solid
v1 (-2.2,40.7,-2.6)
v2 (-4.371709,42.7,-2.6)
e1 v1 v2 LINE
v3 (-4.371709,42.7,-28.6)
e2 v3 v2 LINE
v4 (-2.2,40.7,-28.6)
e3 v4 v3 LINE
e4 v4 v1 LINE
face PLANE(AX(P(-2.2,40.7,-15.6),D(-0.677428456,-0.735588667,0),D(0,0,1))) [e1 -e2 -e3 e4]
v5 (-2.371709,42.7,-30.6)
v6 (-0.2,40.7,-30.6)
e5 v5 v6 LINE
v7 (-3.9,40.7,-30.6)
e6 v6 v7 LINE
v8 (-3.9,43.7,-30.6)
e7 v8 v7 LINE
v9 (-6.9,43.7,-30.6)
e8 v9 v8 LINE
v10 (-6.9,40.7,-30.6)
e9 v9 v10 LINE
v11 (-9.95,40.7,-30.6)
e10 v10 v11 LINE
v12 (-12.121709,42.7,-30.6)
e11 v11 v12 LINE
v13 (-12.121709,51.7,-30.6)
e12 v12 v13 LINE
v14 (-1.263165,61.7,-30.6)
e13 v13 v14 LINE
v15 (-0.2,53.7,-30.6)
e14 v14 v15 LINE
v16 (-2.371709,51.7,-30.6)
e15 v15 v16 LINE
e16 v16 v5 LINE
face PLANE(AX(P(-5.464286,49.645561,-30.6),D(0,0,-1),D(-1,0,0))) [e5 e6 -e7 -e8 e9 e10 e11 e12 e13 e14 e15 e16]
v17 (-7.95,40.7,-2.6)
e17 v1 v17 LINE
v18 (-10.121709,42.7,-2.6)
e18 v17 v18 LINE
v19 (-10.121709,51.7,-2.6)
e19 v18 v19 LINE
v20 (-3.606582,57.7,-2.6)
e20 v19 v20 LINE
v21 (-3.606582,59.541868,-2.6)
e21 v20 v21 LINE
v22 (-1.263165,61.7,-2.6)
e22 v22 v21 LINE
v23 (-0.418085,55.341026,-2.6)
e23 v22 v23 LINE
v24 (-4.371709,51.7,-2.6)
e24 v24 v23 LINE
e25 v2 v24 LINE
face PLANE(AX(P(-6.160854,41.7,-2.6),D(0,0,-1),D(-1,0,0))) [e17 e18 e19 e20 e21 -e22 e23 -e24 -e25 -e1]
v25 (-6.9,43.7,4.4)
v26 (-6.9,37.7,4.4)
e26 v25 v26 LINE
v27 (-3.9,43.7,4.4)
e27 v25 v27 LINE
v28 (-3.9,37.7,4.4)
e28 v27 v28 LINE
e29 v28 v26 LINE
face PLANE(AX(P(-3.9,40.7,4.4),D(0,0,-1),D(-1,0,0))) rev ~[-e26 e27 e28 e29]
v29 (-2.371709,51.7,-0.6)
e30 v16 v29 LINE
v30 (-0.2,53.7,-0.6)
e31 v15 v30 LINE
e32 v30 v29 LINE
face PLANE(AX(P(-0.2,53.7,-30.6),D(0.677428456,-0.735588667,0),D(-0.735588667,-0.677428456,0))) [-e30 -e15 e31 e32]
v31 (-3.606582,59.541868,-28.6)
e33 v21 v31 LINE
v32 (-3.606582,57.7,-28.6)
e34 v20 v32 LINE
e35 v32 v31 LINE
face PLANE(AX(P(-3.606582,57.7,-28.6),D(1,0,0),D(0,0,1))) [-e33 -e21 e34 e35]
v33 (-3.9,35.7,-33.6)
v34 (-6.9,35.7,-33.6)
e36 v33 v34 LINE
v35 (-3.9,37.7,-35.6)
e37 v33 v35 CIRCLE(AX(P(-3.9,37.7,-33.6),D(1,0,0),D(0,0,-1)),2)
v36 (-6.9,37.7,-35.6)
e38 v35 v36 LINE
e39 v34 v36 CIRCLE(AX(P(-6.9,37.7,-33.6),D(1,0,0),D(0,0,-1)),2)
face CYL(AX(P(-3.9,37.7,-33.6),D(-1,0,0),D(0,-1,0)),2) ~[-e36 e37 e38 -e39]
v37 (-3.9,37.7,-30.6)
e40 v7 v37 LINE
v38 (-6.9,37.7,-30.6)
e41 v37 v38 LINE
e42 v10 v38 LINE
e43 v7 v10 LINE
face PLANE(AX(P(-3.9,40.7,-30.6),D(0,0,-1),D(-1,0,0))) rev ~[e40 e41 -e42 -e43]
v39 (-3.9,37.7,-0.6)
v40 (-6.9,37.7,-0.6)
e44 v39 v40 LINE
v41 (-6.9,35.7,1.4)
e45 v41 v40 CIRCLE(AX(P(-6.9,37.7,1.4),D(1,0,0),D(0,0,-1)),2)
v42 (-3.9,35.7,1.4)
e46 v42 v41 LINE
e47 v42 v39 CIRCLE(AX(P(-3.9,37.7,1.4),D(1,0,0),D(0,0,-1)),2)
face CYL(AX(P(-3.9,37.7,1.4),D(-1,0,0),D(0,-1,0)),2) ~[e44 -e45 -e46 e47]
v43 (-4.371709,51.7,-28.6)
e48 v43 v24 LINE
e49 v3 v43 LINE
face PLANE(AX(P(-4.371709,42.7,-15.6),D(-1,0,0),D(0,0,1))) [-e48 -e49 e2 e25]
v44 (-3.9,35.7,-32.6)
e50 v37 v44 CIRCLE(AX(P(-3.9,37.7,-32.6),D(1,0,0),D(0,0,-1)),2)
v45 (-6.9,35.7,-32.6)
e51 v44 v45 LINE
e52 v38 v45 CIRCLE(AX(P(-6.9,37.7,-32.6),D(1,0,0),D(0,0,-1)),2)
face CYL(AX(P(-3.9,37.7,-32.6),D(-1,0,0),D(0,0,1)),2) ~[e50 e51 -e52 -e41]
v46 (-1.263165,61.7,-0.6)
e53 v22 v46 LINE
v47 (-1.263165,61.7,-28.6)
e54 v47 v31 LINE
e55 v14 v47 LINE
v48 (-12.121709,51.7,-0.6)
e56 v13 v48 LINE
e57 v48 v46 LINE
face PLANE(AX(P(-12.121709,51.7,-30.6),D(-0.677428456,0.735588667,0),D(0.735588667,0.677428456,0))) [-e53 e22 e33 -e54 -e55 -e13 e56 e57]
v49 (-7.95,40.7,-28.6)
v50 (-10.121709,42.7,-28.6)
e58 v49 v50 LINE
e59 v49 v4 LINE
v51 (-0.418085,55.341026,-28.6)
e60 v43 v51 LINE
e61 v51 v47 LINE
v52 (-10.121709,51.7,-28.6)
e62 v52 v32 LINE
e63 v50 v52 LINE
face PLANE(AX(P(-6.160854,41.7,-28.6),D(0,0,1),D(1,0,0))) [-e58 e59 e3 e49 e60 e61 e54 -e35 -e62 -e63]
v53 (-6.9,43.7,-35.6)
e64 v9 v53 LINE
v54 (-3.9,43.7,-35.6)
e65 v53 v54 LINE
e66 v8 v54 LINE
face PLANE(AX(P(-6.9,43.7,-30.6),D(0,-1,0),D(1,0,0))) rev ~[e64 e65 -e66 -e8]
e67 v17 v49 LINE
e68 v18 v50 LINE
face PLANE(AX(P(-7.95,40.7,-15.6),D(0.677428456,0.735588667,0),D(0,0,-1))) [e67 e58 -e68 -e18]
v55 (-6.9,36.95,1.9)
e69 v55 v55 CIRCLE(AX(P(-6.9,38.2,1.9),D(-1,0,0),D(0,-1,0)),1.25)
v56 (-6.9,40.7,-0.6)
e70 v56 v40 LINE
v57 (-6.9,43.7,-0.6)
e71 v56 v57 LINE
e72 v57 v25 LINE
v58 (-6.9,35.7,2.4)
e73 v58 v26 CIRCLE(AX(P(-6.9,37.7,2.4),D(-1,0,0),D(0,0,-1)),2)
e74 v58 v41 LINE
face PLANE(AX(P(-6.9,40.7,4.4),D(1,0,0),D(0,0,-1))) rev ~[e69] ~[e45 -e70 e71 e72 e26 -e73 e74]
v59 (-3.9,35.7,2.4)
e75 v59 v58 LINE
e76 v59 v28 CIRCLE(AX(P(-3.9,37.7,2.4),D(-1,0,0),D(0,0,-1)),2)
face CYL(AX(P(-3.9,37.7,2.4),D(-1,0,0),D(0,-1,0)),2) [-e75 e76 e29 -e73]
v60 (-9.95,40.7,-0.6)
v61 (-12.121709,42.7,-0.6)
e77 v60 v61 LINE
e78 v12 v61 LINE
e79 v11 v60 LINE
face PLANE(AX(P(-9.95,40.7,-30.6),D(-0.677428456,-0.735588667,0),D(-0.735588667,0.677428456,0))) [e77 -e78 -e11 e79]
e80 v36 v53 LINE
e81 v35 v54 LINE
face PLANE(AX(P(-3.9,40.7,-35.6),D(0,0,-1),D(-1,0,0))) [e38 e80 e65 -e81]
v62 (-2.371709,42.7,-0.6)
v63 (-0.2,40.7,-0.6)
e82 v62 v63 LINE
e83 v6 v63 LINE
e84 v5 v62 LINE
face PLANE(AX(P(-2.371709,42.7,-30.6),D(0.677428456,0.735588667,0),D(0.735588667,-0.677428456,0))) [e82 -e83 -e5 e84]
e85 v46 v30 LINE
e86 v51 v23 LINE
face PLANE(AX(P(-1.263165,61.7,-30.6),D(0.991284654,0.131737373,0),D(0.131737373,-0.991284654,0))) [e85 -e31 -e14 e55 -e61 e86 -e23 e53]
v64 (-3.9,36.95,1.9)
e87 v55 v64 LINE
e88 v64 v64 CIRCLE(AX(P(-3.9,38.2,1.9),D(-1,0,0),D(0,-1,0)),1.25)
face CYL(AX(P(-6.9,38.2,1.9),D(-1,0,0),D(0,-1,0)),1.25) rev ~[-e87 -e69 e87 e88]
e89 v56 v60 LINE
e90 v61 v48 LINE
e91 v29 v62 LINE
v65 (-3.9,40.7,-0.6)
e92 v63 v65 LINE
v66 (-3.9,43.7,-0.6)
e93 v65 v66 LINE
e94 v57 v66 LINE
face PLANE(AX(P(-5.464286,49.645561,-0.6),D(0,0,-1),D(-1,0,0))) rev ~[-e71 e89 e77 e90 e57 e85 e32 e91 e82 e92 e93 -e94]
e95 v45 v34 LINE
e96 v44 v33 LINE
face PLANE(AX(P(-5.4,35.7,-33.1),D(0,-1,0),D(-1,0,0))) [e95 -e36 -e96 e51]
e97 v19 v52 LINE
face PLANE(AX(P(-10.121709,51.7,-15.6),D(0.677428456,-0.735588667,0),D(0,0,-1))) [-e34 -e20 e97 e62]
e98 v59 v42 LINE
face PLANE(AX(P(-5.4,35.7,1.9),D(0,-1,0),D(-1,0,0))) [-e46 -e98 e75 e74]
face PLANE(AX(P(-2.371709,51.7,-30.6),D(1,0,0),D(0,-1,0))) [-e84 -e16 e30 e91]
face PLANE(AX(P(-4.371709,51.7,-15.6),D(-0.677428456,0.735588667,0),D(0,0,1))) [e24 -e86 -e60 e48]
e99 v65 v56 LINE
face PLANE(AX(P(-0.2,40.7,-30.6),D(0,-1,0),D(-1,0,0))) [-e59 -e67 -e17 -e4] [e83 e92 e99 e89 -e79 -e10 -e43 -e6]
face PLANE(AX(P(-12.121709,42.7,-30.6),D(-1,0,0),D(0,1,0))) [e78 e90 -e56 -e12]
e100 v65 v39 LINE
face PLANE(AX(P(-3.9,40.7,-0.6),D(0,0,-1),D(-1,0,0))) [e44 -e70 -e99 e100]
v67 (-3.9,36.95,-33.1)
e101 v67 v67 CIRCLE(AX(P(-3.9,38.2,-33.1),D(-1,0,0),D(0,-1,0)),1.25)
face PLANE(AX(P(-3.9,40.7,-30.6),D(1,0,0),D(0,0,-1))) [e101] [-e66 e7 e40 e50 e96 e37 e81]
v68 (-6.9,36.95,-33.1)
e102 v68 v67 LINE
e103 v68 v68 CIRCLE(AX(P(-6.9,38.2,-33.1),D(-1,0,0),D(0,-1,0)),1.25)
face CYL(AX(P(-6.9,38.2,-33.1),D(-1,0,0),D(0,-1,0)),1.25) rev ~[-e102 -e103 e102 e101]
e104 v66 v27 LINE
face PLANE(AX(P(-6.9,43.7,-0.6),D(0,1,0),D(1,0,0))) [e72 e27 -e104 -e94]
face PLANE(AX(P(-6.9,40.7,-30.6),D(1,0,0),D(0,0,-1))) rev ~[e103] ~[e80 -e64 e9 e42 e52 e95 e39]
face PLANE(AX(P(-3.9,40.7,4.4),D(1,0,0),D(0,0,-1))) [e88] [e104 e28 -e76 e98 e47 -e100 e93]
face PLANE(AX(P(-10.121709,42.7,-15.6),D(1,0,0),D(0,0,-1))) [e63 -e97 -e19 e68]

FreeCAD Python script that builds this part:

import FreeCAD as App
import Part
import Sketcher

V = App.Vector
Q = App.Units.Quantity


def edges_at(feature, points):
    """Names of the edges that pass closest to the given points."""
    edges = feature.Shape.Edges
    near = lambda p: min(range(len(edges)), key=lambda i: edges[i].distToShape(Part.Vertex(*p))[0])
    return sorted({f"Edge{near(p) + 1}" for p in points})

doc = App.newDocument("Part")
body = doc.addObject("PartDesign::Body", "Body")

# Sketch on XY plane
sketch1 = body.newObject("Sketcher::SketchObject", "Sketch")
sketch1.AttachmentSupport = (doc.getObject("XY_Plane"), [""])
sketch1.MapMode = "FlatFace"
sketch1.addGeometry(Part.LineSegment(V(-11.9, -19, 0), V(-9.8, -21, 0)), False)
sketch1.addGeometry(Part.LineSegment(V(-9.8, -21, 0), V(0, -21, 0)), False)
sketch1.addGeometry(Part.LineSegment(V(0, -21, 0), V(-2.2, -19, 0)), False)
sketch1.addGeometry(Part.LineSegment(V(-2.2, -19, 0), V(-2.2, -10, 0)), False)
sketch1.addGeometry(Part.LineSegment(V(-2.2, -10, 0), V(0, -8, 0)), False)
sketch1.addGeometry(Part.LineSegment(V(0, -8, 0), V(-1.1, 0, 0)), False)
sketch1.addGeometry(Part.LineSegment(V(-1.1, 0, 0), V(-11.9, -10, 0)), False)
sketch1.addGeometry(Part.LineSegment(V(-11.9, -10, 0), V(-11.9, -19, 0)), False)
sketch1.addConstraint(Sketcher.Constraint("Coincident", 0, 2, 1, 1))
sketch1.addConstraint(Sketcher.Constraint("Coincident", 1, 2, 2, 1))
sketch1.addConstraint(Sketcher.Constraint("Coincident", 2, 2, 3, 1))
sketch1.addConstraint(Sketcher.Constraint("Coincident", 3, 2, 4, 1))
sketch1.addConstraint(Sketcher.Constraint("Coincident", 4, 2, 5, 1))
sketch1.addConstraint(Sketcher.Constraint("Coincident", 5, 2, 6, 1))
sketch1.addConstraint(Sketcher.Constraint("Coincident", 6, 2, 7, 1))
sketch1.addConstraint(Sketcher.Constraint("Coincident", 7, 2, 0, 1))
sketch1.addConstraint(Sketcher.Constraint("Horizontal", 1))
sketch1.addConstraint(Sketcher.Constraint("Vertical", 3))
sketch1.addConstraint(Sketcher.Constraint("Vertical", 7))
sketch1.addConstraint(Sketcher.Constraint("PointOnObject", 1, 2, -2))
sketch1.addConstraint(Sketcher.Constraint("PointOnObject", 4, 2, -2))
sketch1.addConstraint(Sketcher.Constraint("PointOnObject", 5, 2, -1))
sketch1.addConstraint(Sketcher.Constraint("Parallel", 0, 2))
sketch1.addConstraint(Sketcher.Constraint("Parallel", 4, 6))
sketch1.addConstraint(Sketcher.Constraint("Horizontal", 3, 2, 6, 2))
sketch1.addConstraint(Sketcher.Constraint("Horizontal", 2, 2, 7, 2))
sketch1.addConstraint(Sketcher.Constraint("Equal", 2, 4))
sketch1.addConstraint(Sketcher.Constraint("DistanceY", 3, 1, 3, 2, 9.0))
sketch1.addConstraint(Sketcher.Constraint("DistanceY", 0, 2, -1, 1, 21.0))
sketch1.addConstraint(Sketcher.Constraint("DistanceY", 2, 2, -1, 1, 19.0))
sketch1.addConstraint(Sketcher.Constraint("DistanceX", 1, 1, 1, 2, 9.75))
sketch1.addConstraint(Sketcher.Constraint("Angle", 5, Q("97.57 deg")))
pad1 = body.newObject("PartDesign::Pad", "Pad")
pad1.Profile = sketch1
pad1.Length = 30

# Sketch on XZ plane
sketch2 = body.newObject("Sketcher::SketchObject", "Sketch001")
sketch2.AttachmentSupport = (doc.getObject("XZ_Plane"), [""])
sketch2.MapMode = "FlatFace"
sketch2.AttachmentOffset = App.Placement(V(0, 0, 21), App.Rotation())
sketch2.addGeometry(Part.LineSegment(V(-8, 28, 0), V(-8, 2, 0)), False)
sketch2.addGeometry(Part.LineSegment(V(-8, 2, 0), V(-2, 2, 0)), False)
sketch2.addGeometry(Part.LineSegment(V(-2, 2, 0), V(-2, 28, 0)), False)
sketch2.addGeometry(Part.LineSegment(V(-2, 28, 0), V(-8, 28, 0)), False)
sketch2.addConstraint(Sketcher.Constraint("Coincident", 0, 2, 1, 1))
sketch2.addConstraint(Sketcher.Constraint("Coincident", 1, 2, 2, 1))
sketch2.addConstraint(Sketcher.Constraint("Coincident", 2, 2, 3, 1))
sketch2.addConstraint(Sketcher.Constraint("Coincident", 3, 2, 0, 1))
sketch2.addConstraint(Sketcher.Constraint("Vertical", 0))
sketch2.addConstraint(Sketcher.Constraint("Horizontal", 1))
sketch2.addConstraint(Sketcher.Constraint("Vertical", 2))
sketch2.addConstraint(Sketcher.Constraint("Horizontal", 3))
sketch2.addConstraint(Sketcher.Constraint("DistanceY", 0, 2, 0, 1, 26.0))
sketch2.addConstraint(Sketcher.Constraint("DistanceY", -1, 1, 0, 2, 2.0))
sketch2.addConstraint(Sketcher.Constraint("DistanceX", 1, 2, -1, 1, 2.0))
sketch2.addConstraint(Sketcher.Constraint("DistanceX", 1, 1, 1, 2, 5.75))

# Sketch on XY plane
sketch3 = body.newObject("Sketcher::SketchObject", "Sketch002")
sketch3.AttachmentSupport = (doc.getObject("XY_Plane"), [""])
sketch3.MapMode = "FlatFace"
sketch3.AttachmentOffset = App.Placement(V(0, 0, 30), App.Rotation())
sketch3.addGeometry(Part.LineSegment(V(-4.9, -21, 0), V(-7, -19, 0)), False)
sketch3.addGeometry(Part.LineSegment(V(-7, -19, 0), V(-7, -10, 0)), False)
sketch3.addGeometry(Part.LineSegment(V(-7, -10, 0), V(-0.5, -4, 0)), False)
sketch3.addConstraint(Sketcher.Constraint("Coincident", 0, 2, 1, 1))
sketch3.addConstraint(Sketcher.Constraint("Coincident", 1, 2, 2, 1))
sketch3.addConstraint(Sketcher.Constraint("Vertical", 1))
sketch3.addConstraint(Sketcher.Constraint("DistanceY", 1, 1, 1, 2, 9.0))
sketch3.addConstraint(Sketcher.Constraint("DistanceY", 0, 1, -1, 1, 21.0))
sketch3.addConstraint(Sketcher.Constraint("DistanceY", 0, 2, -1, 1, 19.0))
sketch3.addConstraint(Sketcher.Constraint("DistanceY", 2, 2, -1, 1, 4.0))
sketch3.addConstraint(Sketcher.Constraint("DistanceX", 0, 1, -1, 1, 4.875))
sketch3.addConstraint(Sketcher.Constraint("Distance", 0, 2.952341))
sketch3.addConstraint(Sketcher.Constraint("Distance", 2, 8.857024))
doc.recompute()

subtractivepipe = body.newObject("PartDesign::SubtractivePipe", "SubtractivePipe")
subtractivepipe.Profile = sketch2
subtractivepipe.Spine = (sketch3, ["Edge1", "Edge2", "Edge3"])

# Sketch on XZ plane
sketch4 = body.newObject("Sketcher::SketchObject", "Sketch003")
sketch4.AttachmentSupport = (doc.getObject("XZ_Plane"), [""])
sketch4.MapMode = "FlatFace"
sketch4.AttachmentOffset = App.Placement(V(0, 0, 4), App.Rotation())
sketch4.addGeometry(Part.LineSegment(V(-3.4, 28, 0), V(-3.4, 2, 0)), False)
sketch4.addGeometry(Part.LineSegment(V(-3.4, 2, 0), V(-0.5, 2, 0)), False)
sketch4.addGeometry(Part.LineSegment(V(-0.5, 2, 0), V(-0.5, 28, 0)), False)
sketch4.addGeometry(Part.LineSegment(V(-0.5, 28, 0), V(-3.4, 28, 0)), False)
sketch4.addConstraint(Sketcher.Constraint("Coincident", 0, 2, 1, 1))
sketch4.addConstraint(Sketcher.Constraint("Coincident", 1, 2, 2, 1))
sketch4.addConstraint(Sketcher.Constraint("Coincident", 2, 2, 3, 1))
sketch4.addConstraint(Sketcher.Constraint("Coincident", 3, 2, 0, 1))
sketch4.addConstraint(Sketcher.Constraint("Vertical", 0))
sketch4.addConstraint(Sketcher.Constraint("Horizontal", 1))
sketch4.addConstraint(Sketcher.Constraint("Vertical", 2))
sketch4.addConstraint(Sketcher.Constraint("Horizontal", 3))
sketch4.addConstraint(Sketcher.Constraint("DistanceY", 0, 2, 0, 1, 26.0))
sketch4.addConstraint(Sketcher.Constraint("DistanceY", -1, 1, 0, 2, 2.0))
sketch4.addConstraint(Sketcher.Constraint("DistanceX", 1, 1, 1, 2, 2.875))
sketch4.addConstraint(Sketcher.Constraint("DistanceX", 0, 2, -1, 1, 3.406582))
pocket1 = body.newObject("PartDesign::Pocket", "Pocket")
pocket1.Profile = sketch4
pocket1.Length = 5

# Sketch on XY plane
sketch5 = body.newObject("Sketcher::SketchObject", "Sketch004")
sketch5.AttachmentSupport = (doc.getObject("XY_Plane"), [""])
sketch5.MapMode = "FlatFace"
sketch5.addGeometry(Part.LineSegment(V(-6.7, -21, 0), V(-6.7, -18, 0)), False)
sketch5.addGeometry(Part.LineSegment(V(-6.7, -18, 0), V(-3.7, -18, 0)), False)
sketch5.addGeometry(Part.LineSegment(V(-3.7, -18, 0), V(-3.7, -21, 0)), False)
sketch5.addGeometry(Part.LineSegment(V(-3.7, -21, 0), V(-6.7, -21, 0)), False)
sketch5.addConstraint(Sketcher.Constraint("Coincident", 0, 2, 1, 1))
sketch5.addConstraint(Sketcher.Constraint("Coincident", 1, 2, 2, 1))
sketch5.addConstraint(Sketcher.Constraint("Coincident", 2, 2, 3, 1))
sketch5.addConstraint(Sketcher.Constraint("Coincident", 3, 2, 0, 1))
sketch5.addConstraint(Sketcher.Constraint("Vertical", 0))
sketch5.addConstraint(Sketcher.Constraint("Horizontal", 1))
sketch5.addConstraint(Sketcher.Constraint("Vertical", 2))
sketch5.addConstraint(Sketcher.Constraint("Horizontal", 3))
sketch5.addConstraint(Sketcher.Constraint("Equal", 3, 0))
sketch5.addConstraint(Sketcher.Constraint("DistanceX", 1, 1, 1, 2, 3.0))
sketch5.addConstraint(Sketcher.Constraint("DistanceY", 0, 2, -1, 1, 18.0))
sketch5.addConstraint(Sketcher.Constraint("DistanceX", 0, 2, -1, 1, 6.7))
pad2 = body.newObject("PartDesign::Pad", "Pad001")
pad2.Profile = sketch5
pad2.Length = 5
pad2.Reversed = True

# Sketch on XZ plane
sketch6 = body.newObject("Sketcher::SketchObject", "Sketch005")
sketch6.AttachmentSupport = (doc.getObject("XZ_Plane"), [""])
sketch6.MapMode = "FlatFace"
sketch6.AttachmentOffset = App.Placement(V(0, 0, 21), App.Rotation())
sketch6.addGeometry(Part.LineSegment(V(-3.7, -5, 0), V(-3.7, 0, 0)), False)
sketch6.addGeometry(Part.LineSegment(V(-3.7, 0, 0), V(-6.7, 0, 0)), False)
sketch6.addGeometry(Part.LineSegment(V(-6.7, 0, 0), V(-6.7, -5, 0)), False)
sketch6.addGeometry(Part.LineSegment(V(-6.7, -5, 0), V(-3.7, -5, 0)), False)
sketch6.addConstraint(Sketcher.Constraint("Coincident", 0, 2, 1, 1))
sketch6.addConstraint(Sketcher.Constraint("Coincident", 1, 2, 2, 1))
sketch6.addConstraint(Sketcher.Constraint("Coincident", 2, 2, 3, 1))
sketch6.addConstraint(Sketcher.Constraint("Coincident", 3, 2, 0, 1))
sketch6.addConstraint(Sketcher.Constraint("Vertical", 0))
sketch6.addConstraint(Sketcher.Constraint("Horizontal", 1))
sketch6.addConstraint(Sketcher.Constraint("Vertical", 2))
sketch6.addConstraint(Sketcher.Constraint("Horizontal", 3))
sketch6.addConstraint(Sketcher.Constraint("PointOnObject", 0, 2, -1))
sketch6.addConstraint(Sketcher.Constraint("DistanceX", 1, 2, 1, 1, 3.0))
sketch6.addConstraint(Sketcher.Constraint("DistanceY", 0, 1, 0, 2, 5.0))
sketch6.addConstraint(Sketcher.Constraint("DistanceX", 0, 2, -1, 1, 3.7))
pad3 = body.newObject("PartDesign::Pad", "Pad002")
pad3.Profile = sketch6
pad3.Length = 5

# Sketch on XY plane
sketch7 = body.newObject("Sketcher::SketchObject", "Sketch006")
sketch7.AttachmentSupport = (doc.getObject("XY_Plane"), [""])
sketch7.MapMode = "FlatFace"
sketch7.AttachmentOffset = App.Placement(V(0, 0, 30), App.Rotation())
sketch7.addGeometry(Part.LineSegment(V(-6.7, -18, 0), V(-6.7, -21, 0)), False)
sketch7.addGeometry(Part.LineSegment(V(-6.7, -21, 0), V(-3.7, -21, 0)), False)
sketch7.addGeometry(Part.LineSegment(V(-3.7, -21, 0), V(-3.7, -18, 0)), False)
sketch7.addGeometry(Part.LineSegment(V(-3.7, -18, 0), V(-6.7, -18, 0)), False)
sketch7.addConstraint(Sketcher.Constraint("Coincident", 0, 2, 1, 1))
sketch7.addConstraint(Sketcher.Constraint("Coincident", 1, 2, 2, 1))
sketch7.addConstraint(Sketcher.Constraint("Coincident", 2, 2, 3, 1))
sketch7.addConstraint(Sketcher.Constraint("Coincident", 3, 2, 0, 1))
sketch7.addConstraint(Sketcher.Constraint("Vertical", 0))
sketch7.addConstraint(Sketcher.Constraint("Horizontal", 1))
sketch7.addConstraint(Sketcher.Constraint("Vertical", 2))
sketch7.addConstraint(Sketcher.Constraint("Horizontal", 3))
sketch7.addConstraint(Sketcher.Constraint("Equal", 3, 0))
sketch7.addConstraint(Sketcher.Constraint("DistanceX", 1, 1, 1, 2, 3.0))
sketch7.addConstraint(Sketcher.Constraint("DistanceY", 0, 2, -1, 1, 21.0))
sketch7.addConstraint(Sketcher.Constraint("DistanceX", 0, 2, -1, 1, 6.7))
pad4 = body.newObject("PartDesign::Pad", "Pad003")
pad4.Profile = sketch7
pad4.Length = 5

# Sketch on XZ plane
sketch8 = body.newObject("Sketcher::SketchObject", "Sketch007")
sketch8.AttachmentSupport = (doc.getObject("XZ_Plane"), [""])
sketch8.MapMode = "FlatFace"
sketch8.AttachmentOffset = App.Placement(V(0, 0, 21), App.Rotation())
sketch8.addGeometry(Part.LineSegment(V(-3.7, 30, 0), V(-3.7, 35, 0)), False)
sketch8.addGeometry(Part.LineSegment(V(-3.7, 35, 0), V(-6.7, 35, 0)), False)
sketch8.addGeometry(Part.LineSegment(V(-6.7, 35, 0), V(-6.7, 30, 0)), False)
sketch8.addGeometry(Part.LineSegment(V(-6.7, 30, 0), V(-3.7, 30, 0)), False)
sketch8.addConstraint(Sketcher.Constraint("Coincident", 0, 2, 1, 1))
sketch8.addConstraint(Sketcher.Constraint("Coincident", 1, 2, 2, 1))
sketch8.addConstraint(Sketcher.Constraint("Coincident", 2, 2, 3, 1))
sketch8.addConstraint(Sketcher.Constraint("Coincident", 3, 2, 0, 1))
sketch8.addConstraint(Sketcher.Constraint("Vertical", 0))
sketch8.addConstraint(Sketcher.Constraint("Horizontal", 1))
sketch8.addConstraint(Sketcher.Constraint("Vertical", 2))
sketch8.addConstraint(Sketcher.Constraint("Horizontal", 3))
sketch8.addConstraint(Sketcher.Constraint("DistanceX", 1, 2, 1, 1, 3.0))
sketch8.addConstraint(Sketcher.Constraint("DistanceY", 0, 1, 0, 2, 5.0))
sketch8.addConstraint(Sketcher.Constraint("DistanceY", -1, 1, 0, 2, 35.0))
sketch8.addConstraint(Sketcher.Constraint("DistanceX", 0, 2, -1, 1, 3.7))
pad5 = body.newObject("PartDesign::Pad", "Pad004")
pad5.Profile = sketch8
pad5.Length = 5

# Sketch on YZ plane
sketch9 = body.newObject("Sketcher::SketchObject", "Sketch008")
sketch9.AttachmentSupport = (doc.getObject("YZ_Plane"), [""])
sketch9.MapMode = "FlatFace"
sketch9.AttachmentOffset = App.Placement(V(0, 0, -6.7), App.Rotation())
sketch9.addGeometry(Part.Circle(V(-23.5, -2.5, 0), V(0, 0, 1), 1.2), False)
sketch9.addGeometry(Part.Circle(V(-23.5, 32.5, 0), V(0, 0, 1), 1.2), False)
sketch9.addConstraint(Sketcher.Constraint("Equal", 0, 1))
sketch9.addConstraint(Sketcher.Constraint("Vertical", 0, 3, 1, 3))
sketch9.addConstraint(Sketcher.Constraint("Diameter", 0, 2.5))
sketch9.addConstraint(Sketcher.Constraint("DistanceY", 0, 3, 1, 3, 35.0))
sketch9.addConstraint(Sketcher.Constraint("DistanceX", 0, 3, -1, 1, 23.5))
sketch9.addConstraint(Sketcher.Constraint("DistanceY", 0, 3, -1, 1, 2.5))
pocket2 = body.newObject("PartDesign::Pocket", "Pocket001")
pocket2.Profile = sketch9
pocket2.Length = 5
pocket2.Reversed = True
doc.recompute()

fillet = body.newObject("PartDesign::Fillet", "Fillet")
fillet.Base = (pocket2, edges_at(pocket2, [
    (-5.2, -26, 35),
    (-5.2, -26, 30),
    (-5.2, -26, 0),
    (-5.2, -26, -5),
]))
fillet.Radius = 2
body2 = doc.addObject("PartDesign::Body", "Body001")
doc.recompute()

body.Placement = App.Placement(V(-0.2, 61.7, -30.6), App.Rotation(V(0, 0, 1), 0))
boolean = body2.newObject("PartDesign::Boolean", "Boolean")
boolean.Type = "Fuse"
boolean.addObjects([body])

doc.recompute()
